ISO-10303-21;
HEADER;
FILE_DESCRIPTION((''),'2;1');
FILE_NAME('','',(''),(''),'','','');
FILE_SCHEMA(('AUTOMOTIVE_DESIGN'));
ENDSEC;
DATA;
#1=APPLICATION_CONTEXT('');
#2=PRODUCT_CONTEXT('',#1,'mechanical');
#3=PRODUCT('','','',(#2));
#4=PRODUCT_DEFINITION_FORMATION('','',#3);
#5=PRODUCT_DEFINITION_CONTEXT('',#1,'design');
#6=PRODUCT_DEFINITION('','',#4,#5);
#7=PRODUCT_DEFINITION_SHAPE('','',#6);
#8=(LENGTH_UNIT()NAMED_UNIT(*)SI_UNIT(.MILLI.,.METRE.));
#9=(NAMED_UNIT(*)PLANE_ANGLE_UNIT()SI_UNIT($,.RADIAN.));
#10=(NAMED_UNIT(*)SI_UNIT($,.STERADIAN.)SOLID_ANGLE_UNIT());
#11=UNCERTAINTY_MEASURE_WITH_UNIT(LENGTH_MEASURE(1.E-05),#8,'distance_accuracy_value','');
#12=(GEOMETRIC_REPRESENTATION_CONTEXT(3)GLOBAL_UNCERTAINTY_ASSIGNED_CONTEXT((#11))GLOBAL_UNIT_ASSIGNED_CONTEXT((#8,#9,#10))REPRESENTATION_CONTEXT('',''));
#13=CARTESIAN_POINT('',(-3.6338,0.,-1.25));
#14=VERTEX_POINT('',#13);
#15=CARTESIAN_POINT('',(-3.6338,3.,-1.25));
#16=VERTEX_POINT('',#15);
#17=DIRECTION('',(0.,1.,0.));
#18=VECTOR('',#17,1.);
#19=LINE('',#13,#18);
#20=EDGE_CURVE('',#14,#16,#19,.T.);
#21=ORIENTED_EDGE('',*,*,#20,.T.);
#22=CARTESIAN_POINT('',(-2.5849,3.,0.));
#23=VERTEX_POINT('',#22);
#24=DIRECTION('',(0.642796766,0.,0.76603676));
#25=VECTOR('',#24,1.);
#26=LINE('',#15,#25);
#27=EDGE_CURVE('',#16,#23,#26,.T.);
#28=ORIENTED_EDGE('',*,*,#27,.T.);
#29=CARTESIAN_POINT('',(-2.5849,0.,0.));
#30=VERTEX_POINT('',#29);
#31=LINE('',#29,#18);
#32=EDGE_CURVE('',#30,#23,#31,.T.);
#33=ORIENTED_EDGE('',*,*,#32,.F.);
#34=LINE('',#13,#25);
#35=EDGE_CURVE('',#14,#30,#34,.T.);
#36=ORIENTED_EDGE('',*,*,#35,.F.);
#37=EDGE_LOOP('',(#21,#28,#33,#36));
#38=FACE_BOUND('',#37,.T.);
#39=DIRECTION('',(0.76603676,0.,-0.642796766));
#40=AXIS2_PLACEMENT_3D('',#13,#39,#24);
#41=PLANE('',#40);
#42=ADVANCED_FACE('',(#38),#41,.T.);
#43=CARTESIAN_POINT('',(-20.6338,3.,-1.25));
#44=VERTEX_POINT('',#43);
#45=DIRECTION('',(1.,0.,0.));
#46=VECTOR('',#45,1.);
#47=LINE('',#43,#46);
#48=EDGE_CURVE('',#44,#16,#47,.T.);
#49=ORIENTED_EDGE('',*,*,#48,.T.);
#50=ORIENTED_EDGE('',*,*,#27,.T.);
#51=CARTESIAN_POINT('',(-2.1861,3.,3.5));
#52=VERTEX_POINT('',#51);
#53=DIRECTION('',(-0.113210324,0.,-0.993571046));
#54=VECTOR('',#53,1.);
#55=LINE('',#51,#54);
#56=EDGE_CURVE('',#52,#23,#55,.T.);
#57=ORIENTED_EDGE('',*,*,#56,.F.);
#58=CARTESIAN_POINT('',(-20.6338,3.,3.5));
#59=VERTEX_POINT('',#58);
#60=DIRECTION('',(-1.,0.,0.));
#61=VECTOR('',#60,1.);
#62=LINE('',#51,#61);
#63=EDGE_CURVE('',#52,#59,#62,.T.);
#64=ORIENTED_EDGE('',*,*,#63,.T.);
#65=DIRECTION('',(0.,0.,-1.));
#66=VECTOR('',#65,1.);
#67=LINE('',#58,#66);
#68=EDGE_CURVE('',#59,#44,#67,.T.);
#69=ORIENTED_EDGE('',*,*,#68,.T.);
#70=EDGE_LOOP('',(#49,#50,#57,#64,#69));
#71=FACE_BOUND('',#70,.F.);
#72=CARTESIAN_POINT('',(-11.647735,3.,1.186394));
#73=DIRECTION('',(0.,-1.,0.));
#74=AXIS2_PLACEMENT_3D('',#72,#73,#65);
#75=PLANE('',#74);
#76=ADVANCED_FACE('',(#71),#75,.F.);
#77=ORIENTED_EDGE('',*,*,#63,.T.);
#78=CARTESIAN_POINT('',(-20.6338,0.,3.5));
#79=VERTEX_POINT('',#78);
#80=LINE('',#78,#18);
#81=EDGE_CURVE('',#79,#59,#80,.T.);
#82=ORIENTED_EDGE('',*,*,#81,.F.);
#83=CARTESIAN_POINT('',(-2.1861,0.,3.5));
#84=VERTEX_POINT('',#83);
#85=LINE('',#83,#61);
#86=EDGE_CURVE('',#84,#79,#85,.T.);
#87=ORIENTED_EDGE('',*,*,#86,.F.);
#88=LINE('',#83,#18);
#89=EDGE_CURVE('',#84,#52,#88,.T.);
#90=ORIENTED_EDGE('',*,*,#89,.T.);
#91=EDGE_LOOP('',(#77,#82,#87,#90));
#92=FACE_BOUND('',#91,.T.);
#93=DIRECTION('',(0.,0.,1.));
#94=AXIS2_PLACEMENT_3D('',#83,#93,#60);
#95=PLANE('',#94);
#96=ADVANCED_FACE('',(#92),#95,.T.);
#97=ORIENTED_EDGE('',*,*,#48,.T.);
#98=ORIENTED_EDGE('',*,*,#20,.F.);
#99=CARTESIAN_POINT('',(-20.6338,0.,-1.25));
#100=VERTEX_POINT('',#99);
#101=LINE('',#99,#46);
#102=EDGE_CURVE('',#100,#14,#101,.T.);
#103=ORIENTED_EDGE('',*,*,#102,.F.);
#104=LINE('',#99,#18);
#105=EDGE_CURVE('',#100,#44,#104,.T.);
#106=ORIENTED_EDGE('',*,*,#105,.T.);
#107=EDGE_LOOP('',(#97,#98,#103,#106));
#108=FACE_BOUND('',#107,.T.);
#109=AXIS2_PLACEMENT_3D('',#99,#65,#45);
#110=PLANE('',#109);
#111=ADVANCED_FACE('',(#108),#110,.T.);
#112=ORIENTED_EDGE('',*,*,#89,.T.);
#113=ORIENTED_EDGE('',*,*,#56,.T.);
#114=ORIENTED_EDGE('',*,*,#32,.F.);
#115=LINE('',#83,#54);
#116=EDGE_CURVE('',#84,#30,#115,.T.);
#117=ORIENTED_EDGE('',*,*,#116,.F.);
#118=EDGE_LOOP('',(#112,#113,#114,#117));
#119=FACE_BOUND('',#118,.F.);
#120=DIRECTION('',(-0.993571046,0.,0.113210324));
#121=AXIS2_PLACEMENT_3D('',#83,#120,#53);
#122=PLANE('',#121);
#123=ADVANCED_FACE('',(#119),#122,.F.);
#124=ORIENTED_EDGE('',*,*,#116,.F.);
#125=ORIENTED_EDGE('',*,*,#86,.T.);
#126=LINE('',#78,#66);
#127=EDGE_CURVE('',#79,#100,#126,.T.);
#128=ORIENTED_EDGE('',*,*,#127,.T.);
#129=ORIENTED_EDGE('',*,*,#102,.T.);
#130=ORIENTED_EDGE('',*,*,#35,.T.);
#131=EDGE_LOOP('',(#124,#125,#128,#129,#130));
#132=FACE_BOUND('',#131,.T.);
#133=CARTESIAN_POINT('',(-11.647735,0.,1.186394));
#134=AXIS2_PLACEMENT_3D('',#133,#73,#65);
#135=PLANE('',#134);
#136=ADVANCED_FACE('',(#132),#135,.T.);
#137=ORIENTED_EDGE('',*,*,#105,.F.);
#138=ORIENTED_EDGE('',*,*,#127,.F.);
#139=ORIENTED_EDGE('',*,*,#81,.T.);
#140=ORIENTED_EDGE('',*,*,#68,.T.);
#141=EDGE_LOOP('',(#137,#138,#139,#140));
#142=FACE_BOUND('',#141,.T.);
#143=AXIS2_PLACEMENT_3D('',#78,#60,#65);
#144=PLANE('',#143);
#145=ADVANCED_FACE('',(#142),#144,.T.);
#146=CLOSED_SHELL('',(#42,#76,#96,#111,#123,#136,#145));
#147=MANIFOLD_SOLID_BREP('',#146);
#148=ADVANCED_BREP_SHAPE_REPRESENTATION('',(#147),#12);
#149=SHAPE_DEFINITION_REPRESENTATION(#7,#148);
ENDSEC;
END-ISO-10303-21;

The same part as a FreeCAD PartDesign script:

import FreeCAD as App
import Part
import Sketcher

V = App.Vector
Q = App.Units.Quantity


def add_polygon(sketch, points):
    """Adds a closed chain of lines whose ends are joined by coincident constraints."""
    first, n = sketch.GeometryCount, len(points)
    for a, b in zip(points, points[1:] + points[:1]):
        sketch.addGeometry(Part.LineSegment(App.Vector(*a, 0), App.Vector(*b, 0)), False)
    for i in range(n):
        sketch.addConstraint(Sketcher.Constraint("Coincident", first + i, 2, first + (i + 1) % n, 1))

doc = App.newDocument("Part")
params = doc.addObject("Spreadsheet::Sheet", "Params")
for row, (alias, value) in enumerate([
    ("sketch1_height", "0.187 in"),
    ("pad1_length", "0.1181102 in"),
], start=1):
    params.set(f"A{row}", alias)
    params.set(f"B{row}", "=" + value)
    params.setAlias(f"B{row}", alias)

body = doc.addObject("PartDesign::Body", "Body")

sketch1 = body.newObject("Sketcher::SketchObject", "Sketch")
sketch1.AttachmentSupport = (doc.getObject("XZ_Plane"), [""])
sketch1.MapMode = "FlatFace"
add_polygon(sketch1, [(-20.6, 3.5), (-20.6, -1.2), (-3.6, -1.2), (-2.6, 0), (-2.2, 3.5)])
sketch1.addConstraint(Sketcher.Constraint("Vertical", 0))
sketch1.addConstraint(Sketcher.Constraint("Horizontal", 1))
sketch1.addConstraint(Sketcher.Constraint("Horizontal", 4))
sketch1.addConstraint(Sketcher.Constraint("PointOnObject", 2, 2, -1))
sketch1.addConstraint(Sketcher.Constraint("Angle", 2, Q("49.9993 deg")))
sketch1.addConstraint(Sketcher.Constraint("Angle", 3, Q("83.4996 deg")))
sketch1.addConstraint(Sketcher.Constraint("DistanceY", 0, 2, 0, 1, Q("0.187 in")))
sketch1.addConstraint(Sketcher.Constraint("DistanceX", 1, 1, 1, 2, Q("0.6693 in")))
sketch1.addConstraint(Sketcher.Constraint("DistanceX", 1, 2, 3, 2, Q("0.057 in")))
sketch1.addConstraint(Sketcher.Constraint("DistanceX", 0, 2, -1, 1, 20.6338))
sketch1.setExpression("Constraints[11]", "Params.sketch1_height")
pad1 = body.newObject("PartDesign::Pad", "Pad")
pad1.Profile = sketch1
pad1.setExpression("Length", "Params.pad1_length")
pad1.Reversed = True

doc.recompute()
